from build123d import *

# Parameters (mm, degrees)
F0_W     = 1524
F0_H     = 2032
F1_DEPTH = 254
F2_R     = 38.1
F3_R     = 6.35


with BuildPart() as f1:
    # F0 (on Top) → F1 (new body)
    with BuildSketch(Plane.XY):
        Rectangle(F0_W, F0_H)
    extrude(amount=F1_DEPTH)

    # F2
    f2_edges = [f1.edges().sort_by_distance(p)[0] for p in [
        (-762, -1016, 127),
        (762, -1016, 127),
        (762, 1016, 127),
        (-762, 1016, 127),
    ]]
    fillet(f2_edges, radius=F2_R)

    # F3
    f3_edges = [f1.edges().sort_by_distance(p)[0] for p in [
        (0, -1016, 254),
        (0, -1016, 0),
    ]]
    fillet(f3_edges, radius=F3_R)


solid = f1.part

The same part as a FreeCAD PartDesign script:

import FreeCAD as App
import Part
import Sketcher

V = App.Vector
Q = App.Units.Quantity


def edges_at(feature, points):
    """Names of the edges that pass closest to the given points."""
    edges = feature.Shape.Edges
    near = lambda p: min(range(len(edges)), key=lambda i: edges[i].distToShape(Part.Vertex(*p))[0])
    return sorted({f"Edge{near(p) + 1}" for p in points})

doc = App.newDocument("Part")
body = doc.addObject("PartDesign::Body", "Body")

sketch1 = body.newObject("Sketcher::SketchObject", "Sketch")
sketch1.AttachmentSupport = (doc.getObject("XY_Plane"), [""])
sketch1.MapMode = "FlatFace"
sketch1.addGeometry([
    Part.LineSegment(V(-762, 1016, 0), V(-762, -1016, 0)),
    Part.LineSegment(V(-762, -1016, 0), V(762, -1016, 0)),
    Part.LineSegment(V(762, -1016, 0), V(762, 1016, 0)),
    Part.LineSegment(V(762, 1016, 0), V(-762, 1016, 0)),
], False)
sketch1.addConstraint([
    Sketcher.Constraint("Coincident", 0, 2, 1, 1),
    Sketcher.Constraint("Coincident", 1, 2, 2, 1),
    Sketcher.Constraint("Coincident", 2, 2, 3, 1),
    Sketcher.Constraint("Coincident", 3, 2, 0, 1),
    Sketcher.Constraint("Vertical", 0),
    Sketcher.Constraint("Horizontal", 1),
    Sketcher.Constraint("Vertical", 2),
    Sketcher.Constraint("Horizontal", 3),
    Sketcher.Constraint("Symmetric", 0, 2, 2, 2, -1, 1),
    Sketcher.Constraint("DistanceX", 1, 1, 1, 2, Q("60 in")),
    Sketcher.Constraint("DistanceY", 0, 2, 0, 1, Q("80 in")),
])
pad1 = body.newObject("PartDesign::Pad", "Pad")
pad1.Profile = sketch1
pad1.Length = Q("10 in")
doc.recompute()

fillet = body.newObject("PartDesign::Fillet", "Fillet")
fillet.Base = (pad1, edges_at(pad1, [
    (-762, -1016, 127),
    (762, -1016, 127),
    (762, 1016, 127),
    (-762, 1016, 127),
]))
fillet.Radius = Q("1.5 in")
doc.recompute()

fillet2 = body.newObject("PartDesign::Fillet", "Fillet001")
fillet2.Base = (fillet, edges_at(fillet, [(0, -1016, 254), (0, -1016, 0)]))
fillet2.Radius = Q("0.25 in")

doc.recompute()
